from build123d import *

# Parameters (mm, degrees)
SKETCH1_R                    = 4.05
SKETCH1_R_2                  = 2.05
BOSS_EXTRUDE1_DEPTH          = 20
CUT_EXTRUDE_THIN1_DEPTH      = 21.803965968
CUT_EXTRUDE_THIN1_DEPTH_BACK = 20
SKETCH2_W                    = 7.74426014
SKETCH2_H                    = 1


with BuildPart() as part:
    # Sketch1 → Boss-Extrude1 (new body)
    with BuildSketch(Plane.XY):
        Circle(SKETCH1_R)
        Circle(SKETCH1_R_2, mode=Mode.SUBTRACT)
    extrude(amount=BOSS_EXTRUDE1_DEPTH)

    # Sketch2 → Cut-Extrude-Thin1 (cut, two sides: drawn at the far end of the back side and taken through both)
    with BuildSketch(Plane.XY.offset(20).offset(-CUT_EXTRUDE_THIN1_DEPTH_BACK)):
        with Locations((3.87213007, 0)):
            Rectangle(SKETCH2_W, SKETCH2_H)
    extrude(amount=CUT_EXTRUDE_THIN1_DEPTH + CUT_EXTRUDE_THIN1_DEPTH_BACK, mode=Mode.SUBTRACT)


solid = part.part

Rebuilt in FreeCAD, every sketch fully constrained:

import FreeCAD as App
import Part
import Sketcher

V = App.Vector
Q = App.Units.Quantity


def add_polygon(sketch, points):
    """Adds a closed chain of lines whose ends are joined by coincident constraints."""
    first, n = sketch.GeometryCount, len(points)
    for a, b in zip(points, points[1:] + points[:1]):
        sketch.addGeometry(Part.LineSegment(App.Vector(*a, 0), App.Vector(*b, 0)), False)
    for i in range(n):
        sketch.addConstraint(Sketcher.Constraint("Coincident", first + i, 2, first + (i + 1) % n, 1))

doc = App.newDocument("Part")
body = doc.addObject("PartDesign::Body", "Body")

# Sketch on XY plane
sketch1 = doc.addObject("Sketcher::SketchObject", "Sketch")
body.addObject(sketch1)
sketch1.AttachmentSupport = (doc.XY_Plane, [""])
sketch1.MapMode = "FlatFace"
sketch1.addGeometry([
    Part.Circle(V(0, 0, 0), V(0, 0, 1), 4),
    Part.Circle(V(0, 0, 0), V(0, 0, 1), 2),
], False)
sketch1.addConstraint([
    Sketcher.Constraint("Coincident", 0, 3, -1, 1),
    Sketcher.Constraint("Coincident", 1, 3, -1, 1),
    Sketcher.Constraint("Diameter", 0, Q("8.1 mm")),
    Sketcher.Constraint("Diameter", 1, Q("4.1 mm")),
])
pad1 = doc.addObject("PartDesign::Pad", "Pad")
body.addObject(pad1)
pad1.Profile = sketch1
pad1.Length = 20

# Sketch on XY plane
sketch2 = doc.addObject("Sketcher::SketchObject", "Sketch001")
body.addObject(sketch2)
sketch2.AttachmentSupport = (doc.XY_Plane, [""])
sketch2.MapMode = "FlatFace"
sketch2.AttachmentOffset = App.Placement(V(0, 0, 20), App.Rotation())
add_polygon(sketch2, [(0, 0.5), (0, -0.5), (7.7, -0.5), (7.7, 0.5)])  # lines 0-3
sketch2.addConstraint([
    Sketcher.Constraint("Vertical", 0),
    Sketcher.Constraint("Horizontal", 1),
    Sketcher.Constraint("Vertical", 2),
    Sketcher.Constraint("Horizontal", 3),
    Sketcher.Constraint("Symmetric", 0, 2, 3, 2, -1, 1),
    Sketcher.Constraint("DistanceY", 0, 2, 0, 1, Q("1 mm")),
    Sketcher.Constraint("DistanceX", 1, 1, 1, 2, Q("7.74426 mm")),
])
pocket1 = doc.addObject("PartDesign::Pocket", "Pocket")
body.addObject(pocket1)
pocket1.Profile = sketch2
pocket1.Type = "ThroughAll"
pocket1.Midplane = True

doc.recompute()
